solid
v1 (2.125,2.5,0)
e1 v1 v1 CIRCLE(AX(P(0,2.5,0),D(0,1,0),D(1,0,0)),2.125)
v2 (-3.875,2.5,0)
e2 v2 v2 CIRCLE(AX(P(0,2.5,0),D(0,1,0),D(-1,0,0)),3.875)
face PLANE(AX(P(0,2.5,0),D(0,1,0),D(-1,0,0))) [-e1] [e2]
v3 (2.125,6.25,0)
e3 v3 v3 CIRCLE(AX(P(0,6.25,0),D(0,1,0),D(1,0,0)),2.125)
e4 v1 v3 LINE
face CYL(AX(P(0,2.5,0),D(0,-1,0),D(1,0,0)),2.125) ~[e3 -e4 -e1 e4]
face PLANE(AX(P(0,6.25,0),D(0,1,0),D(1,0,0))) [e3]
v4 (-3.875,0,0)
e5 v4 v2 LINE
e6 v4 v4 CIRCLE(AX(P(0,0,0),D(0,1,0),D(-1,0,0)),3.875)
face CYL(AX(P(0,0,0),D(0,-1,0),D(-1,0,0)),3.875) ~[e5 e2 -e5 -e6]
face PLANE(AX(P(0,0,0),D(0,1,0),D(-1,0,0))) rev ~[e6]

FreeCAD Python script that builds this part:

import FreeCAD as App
import Part
import Sketcher

doc = App.newDocument("Part")
body = doc.addObject("PartDesign::Body", "Body")

# Sketch on XZ plane
sketch1 = body.newObject("Sketcher::SketchObject", "Sketch")
sketch1.AttachmentSupport = (doc.getObject("XZ_Plane"), [""])
sketch1.MapMode = "FlatFace"
sketch1.addGeometry(Part.Circle(App.Vector(0, 0, 0), App.Vector(0, 0, 1), 3.875), False)
sketch1.addConstraint([
    Sketcher.Constraint("Coincident", 0, 3, -1, 1),
    Sketcher.Constraint("Diameter", 0, 7.75),
])
pad1 = body.newObject("PartDesign::Pad", "Pad")
pad1.Profile = sketch1
pad1.Length = 2.5
pad1.Reversed = True

# Sketch on XZ plane
sketch2 = body.newObject("Sketcher::SketchObject", "Sketch001")
sketch2.AttachmentSupport = (doc.getObject("XZ_Plane"), [""])
sketch2.MapMode = "FlatFace"
sketch2.AttachmentOffset = App.Placement(App.Vector(0, 0, -2.5), App.Rotation())
sketch2.addGeometry(Part.Circle(App.Vector(0, 0, 0), App.Vector(0, 0, 1), 2.125), False)
sketch2.addConstraint([
    Sketcher.Constraint("Coincident", 0, 3, -1, 1),
    Sketcher.Constraint("Diameter", 0, 4.25),
])
pad2 = body.newObject("PartDesign::Pad", "Pad001")
pad2.Profile = sketch2
pad2.Length = 3.75
pad2.Reversed = True

doc.recompute()
